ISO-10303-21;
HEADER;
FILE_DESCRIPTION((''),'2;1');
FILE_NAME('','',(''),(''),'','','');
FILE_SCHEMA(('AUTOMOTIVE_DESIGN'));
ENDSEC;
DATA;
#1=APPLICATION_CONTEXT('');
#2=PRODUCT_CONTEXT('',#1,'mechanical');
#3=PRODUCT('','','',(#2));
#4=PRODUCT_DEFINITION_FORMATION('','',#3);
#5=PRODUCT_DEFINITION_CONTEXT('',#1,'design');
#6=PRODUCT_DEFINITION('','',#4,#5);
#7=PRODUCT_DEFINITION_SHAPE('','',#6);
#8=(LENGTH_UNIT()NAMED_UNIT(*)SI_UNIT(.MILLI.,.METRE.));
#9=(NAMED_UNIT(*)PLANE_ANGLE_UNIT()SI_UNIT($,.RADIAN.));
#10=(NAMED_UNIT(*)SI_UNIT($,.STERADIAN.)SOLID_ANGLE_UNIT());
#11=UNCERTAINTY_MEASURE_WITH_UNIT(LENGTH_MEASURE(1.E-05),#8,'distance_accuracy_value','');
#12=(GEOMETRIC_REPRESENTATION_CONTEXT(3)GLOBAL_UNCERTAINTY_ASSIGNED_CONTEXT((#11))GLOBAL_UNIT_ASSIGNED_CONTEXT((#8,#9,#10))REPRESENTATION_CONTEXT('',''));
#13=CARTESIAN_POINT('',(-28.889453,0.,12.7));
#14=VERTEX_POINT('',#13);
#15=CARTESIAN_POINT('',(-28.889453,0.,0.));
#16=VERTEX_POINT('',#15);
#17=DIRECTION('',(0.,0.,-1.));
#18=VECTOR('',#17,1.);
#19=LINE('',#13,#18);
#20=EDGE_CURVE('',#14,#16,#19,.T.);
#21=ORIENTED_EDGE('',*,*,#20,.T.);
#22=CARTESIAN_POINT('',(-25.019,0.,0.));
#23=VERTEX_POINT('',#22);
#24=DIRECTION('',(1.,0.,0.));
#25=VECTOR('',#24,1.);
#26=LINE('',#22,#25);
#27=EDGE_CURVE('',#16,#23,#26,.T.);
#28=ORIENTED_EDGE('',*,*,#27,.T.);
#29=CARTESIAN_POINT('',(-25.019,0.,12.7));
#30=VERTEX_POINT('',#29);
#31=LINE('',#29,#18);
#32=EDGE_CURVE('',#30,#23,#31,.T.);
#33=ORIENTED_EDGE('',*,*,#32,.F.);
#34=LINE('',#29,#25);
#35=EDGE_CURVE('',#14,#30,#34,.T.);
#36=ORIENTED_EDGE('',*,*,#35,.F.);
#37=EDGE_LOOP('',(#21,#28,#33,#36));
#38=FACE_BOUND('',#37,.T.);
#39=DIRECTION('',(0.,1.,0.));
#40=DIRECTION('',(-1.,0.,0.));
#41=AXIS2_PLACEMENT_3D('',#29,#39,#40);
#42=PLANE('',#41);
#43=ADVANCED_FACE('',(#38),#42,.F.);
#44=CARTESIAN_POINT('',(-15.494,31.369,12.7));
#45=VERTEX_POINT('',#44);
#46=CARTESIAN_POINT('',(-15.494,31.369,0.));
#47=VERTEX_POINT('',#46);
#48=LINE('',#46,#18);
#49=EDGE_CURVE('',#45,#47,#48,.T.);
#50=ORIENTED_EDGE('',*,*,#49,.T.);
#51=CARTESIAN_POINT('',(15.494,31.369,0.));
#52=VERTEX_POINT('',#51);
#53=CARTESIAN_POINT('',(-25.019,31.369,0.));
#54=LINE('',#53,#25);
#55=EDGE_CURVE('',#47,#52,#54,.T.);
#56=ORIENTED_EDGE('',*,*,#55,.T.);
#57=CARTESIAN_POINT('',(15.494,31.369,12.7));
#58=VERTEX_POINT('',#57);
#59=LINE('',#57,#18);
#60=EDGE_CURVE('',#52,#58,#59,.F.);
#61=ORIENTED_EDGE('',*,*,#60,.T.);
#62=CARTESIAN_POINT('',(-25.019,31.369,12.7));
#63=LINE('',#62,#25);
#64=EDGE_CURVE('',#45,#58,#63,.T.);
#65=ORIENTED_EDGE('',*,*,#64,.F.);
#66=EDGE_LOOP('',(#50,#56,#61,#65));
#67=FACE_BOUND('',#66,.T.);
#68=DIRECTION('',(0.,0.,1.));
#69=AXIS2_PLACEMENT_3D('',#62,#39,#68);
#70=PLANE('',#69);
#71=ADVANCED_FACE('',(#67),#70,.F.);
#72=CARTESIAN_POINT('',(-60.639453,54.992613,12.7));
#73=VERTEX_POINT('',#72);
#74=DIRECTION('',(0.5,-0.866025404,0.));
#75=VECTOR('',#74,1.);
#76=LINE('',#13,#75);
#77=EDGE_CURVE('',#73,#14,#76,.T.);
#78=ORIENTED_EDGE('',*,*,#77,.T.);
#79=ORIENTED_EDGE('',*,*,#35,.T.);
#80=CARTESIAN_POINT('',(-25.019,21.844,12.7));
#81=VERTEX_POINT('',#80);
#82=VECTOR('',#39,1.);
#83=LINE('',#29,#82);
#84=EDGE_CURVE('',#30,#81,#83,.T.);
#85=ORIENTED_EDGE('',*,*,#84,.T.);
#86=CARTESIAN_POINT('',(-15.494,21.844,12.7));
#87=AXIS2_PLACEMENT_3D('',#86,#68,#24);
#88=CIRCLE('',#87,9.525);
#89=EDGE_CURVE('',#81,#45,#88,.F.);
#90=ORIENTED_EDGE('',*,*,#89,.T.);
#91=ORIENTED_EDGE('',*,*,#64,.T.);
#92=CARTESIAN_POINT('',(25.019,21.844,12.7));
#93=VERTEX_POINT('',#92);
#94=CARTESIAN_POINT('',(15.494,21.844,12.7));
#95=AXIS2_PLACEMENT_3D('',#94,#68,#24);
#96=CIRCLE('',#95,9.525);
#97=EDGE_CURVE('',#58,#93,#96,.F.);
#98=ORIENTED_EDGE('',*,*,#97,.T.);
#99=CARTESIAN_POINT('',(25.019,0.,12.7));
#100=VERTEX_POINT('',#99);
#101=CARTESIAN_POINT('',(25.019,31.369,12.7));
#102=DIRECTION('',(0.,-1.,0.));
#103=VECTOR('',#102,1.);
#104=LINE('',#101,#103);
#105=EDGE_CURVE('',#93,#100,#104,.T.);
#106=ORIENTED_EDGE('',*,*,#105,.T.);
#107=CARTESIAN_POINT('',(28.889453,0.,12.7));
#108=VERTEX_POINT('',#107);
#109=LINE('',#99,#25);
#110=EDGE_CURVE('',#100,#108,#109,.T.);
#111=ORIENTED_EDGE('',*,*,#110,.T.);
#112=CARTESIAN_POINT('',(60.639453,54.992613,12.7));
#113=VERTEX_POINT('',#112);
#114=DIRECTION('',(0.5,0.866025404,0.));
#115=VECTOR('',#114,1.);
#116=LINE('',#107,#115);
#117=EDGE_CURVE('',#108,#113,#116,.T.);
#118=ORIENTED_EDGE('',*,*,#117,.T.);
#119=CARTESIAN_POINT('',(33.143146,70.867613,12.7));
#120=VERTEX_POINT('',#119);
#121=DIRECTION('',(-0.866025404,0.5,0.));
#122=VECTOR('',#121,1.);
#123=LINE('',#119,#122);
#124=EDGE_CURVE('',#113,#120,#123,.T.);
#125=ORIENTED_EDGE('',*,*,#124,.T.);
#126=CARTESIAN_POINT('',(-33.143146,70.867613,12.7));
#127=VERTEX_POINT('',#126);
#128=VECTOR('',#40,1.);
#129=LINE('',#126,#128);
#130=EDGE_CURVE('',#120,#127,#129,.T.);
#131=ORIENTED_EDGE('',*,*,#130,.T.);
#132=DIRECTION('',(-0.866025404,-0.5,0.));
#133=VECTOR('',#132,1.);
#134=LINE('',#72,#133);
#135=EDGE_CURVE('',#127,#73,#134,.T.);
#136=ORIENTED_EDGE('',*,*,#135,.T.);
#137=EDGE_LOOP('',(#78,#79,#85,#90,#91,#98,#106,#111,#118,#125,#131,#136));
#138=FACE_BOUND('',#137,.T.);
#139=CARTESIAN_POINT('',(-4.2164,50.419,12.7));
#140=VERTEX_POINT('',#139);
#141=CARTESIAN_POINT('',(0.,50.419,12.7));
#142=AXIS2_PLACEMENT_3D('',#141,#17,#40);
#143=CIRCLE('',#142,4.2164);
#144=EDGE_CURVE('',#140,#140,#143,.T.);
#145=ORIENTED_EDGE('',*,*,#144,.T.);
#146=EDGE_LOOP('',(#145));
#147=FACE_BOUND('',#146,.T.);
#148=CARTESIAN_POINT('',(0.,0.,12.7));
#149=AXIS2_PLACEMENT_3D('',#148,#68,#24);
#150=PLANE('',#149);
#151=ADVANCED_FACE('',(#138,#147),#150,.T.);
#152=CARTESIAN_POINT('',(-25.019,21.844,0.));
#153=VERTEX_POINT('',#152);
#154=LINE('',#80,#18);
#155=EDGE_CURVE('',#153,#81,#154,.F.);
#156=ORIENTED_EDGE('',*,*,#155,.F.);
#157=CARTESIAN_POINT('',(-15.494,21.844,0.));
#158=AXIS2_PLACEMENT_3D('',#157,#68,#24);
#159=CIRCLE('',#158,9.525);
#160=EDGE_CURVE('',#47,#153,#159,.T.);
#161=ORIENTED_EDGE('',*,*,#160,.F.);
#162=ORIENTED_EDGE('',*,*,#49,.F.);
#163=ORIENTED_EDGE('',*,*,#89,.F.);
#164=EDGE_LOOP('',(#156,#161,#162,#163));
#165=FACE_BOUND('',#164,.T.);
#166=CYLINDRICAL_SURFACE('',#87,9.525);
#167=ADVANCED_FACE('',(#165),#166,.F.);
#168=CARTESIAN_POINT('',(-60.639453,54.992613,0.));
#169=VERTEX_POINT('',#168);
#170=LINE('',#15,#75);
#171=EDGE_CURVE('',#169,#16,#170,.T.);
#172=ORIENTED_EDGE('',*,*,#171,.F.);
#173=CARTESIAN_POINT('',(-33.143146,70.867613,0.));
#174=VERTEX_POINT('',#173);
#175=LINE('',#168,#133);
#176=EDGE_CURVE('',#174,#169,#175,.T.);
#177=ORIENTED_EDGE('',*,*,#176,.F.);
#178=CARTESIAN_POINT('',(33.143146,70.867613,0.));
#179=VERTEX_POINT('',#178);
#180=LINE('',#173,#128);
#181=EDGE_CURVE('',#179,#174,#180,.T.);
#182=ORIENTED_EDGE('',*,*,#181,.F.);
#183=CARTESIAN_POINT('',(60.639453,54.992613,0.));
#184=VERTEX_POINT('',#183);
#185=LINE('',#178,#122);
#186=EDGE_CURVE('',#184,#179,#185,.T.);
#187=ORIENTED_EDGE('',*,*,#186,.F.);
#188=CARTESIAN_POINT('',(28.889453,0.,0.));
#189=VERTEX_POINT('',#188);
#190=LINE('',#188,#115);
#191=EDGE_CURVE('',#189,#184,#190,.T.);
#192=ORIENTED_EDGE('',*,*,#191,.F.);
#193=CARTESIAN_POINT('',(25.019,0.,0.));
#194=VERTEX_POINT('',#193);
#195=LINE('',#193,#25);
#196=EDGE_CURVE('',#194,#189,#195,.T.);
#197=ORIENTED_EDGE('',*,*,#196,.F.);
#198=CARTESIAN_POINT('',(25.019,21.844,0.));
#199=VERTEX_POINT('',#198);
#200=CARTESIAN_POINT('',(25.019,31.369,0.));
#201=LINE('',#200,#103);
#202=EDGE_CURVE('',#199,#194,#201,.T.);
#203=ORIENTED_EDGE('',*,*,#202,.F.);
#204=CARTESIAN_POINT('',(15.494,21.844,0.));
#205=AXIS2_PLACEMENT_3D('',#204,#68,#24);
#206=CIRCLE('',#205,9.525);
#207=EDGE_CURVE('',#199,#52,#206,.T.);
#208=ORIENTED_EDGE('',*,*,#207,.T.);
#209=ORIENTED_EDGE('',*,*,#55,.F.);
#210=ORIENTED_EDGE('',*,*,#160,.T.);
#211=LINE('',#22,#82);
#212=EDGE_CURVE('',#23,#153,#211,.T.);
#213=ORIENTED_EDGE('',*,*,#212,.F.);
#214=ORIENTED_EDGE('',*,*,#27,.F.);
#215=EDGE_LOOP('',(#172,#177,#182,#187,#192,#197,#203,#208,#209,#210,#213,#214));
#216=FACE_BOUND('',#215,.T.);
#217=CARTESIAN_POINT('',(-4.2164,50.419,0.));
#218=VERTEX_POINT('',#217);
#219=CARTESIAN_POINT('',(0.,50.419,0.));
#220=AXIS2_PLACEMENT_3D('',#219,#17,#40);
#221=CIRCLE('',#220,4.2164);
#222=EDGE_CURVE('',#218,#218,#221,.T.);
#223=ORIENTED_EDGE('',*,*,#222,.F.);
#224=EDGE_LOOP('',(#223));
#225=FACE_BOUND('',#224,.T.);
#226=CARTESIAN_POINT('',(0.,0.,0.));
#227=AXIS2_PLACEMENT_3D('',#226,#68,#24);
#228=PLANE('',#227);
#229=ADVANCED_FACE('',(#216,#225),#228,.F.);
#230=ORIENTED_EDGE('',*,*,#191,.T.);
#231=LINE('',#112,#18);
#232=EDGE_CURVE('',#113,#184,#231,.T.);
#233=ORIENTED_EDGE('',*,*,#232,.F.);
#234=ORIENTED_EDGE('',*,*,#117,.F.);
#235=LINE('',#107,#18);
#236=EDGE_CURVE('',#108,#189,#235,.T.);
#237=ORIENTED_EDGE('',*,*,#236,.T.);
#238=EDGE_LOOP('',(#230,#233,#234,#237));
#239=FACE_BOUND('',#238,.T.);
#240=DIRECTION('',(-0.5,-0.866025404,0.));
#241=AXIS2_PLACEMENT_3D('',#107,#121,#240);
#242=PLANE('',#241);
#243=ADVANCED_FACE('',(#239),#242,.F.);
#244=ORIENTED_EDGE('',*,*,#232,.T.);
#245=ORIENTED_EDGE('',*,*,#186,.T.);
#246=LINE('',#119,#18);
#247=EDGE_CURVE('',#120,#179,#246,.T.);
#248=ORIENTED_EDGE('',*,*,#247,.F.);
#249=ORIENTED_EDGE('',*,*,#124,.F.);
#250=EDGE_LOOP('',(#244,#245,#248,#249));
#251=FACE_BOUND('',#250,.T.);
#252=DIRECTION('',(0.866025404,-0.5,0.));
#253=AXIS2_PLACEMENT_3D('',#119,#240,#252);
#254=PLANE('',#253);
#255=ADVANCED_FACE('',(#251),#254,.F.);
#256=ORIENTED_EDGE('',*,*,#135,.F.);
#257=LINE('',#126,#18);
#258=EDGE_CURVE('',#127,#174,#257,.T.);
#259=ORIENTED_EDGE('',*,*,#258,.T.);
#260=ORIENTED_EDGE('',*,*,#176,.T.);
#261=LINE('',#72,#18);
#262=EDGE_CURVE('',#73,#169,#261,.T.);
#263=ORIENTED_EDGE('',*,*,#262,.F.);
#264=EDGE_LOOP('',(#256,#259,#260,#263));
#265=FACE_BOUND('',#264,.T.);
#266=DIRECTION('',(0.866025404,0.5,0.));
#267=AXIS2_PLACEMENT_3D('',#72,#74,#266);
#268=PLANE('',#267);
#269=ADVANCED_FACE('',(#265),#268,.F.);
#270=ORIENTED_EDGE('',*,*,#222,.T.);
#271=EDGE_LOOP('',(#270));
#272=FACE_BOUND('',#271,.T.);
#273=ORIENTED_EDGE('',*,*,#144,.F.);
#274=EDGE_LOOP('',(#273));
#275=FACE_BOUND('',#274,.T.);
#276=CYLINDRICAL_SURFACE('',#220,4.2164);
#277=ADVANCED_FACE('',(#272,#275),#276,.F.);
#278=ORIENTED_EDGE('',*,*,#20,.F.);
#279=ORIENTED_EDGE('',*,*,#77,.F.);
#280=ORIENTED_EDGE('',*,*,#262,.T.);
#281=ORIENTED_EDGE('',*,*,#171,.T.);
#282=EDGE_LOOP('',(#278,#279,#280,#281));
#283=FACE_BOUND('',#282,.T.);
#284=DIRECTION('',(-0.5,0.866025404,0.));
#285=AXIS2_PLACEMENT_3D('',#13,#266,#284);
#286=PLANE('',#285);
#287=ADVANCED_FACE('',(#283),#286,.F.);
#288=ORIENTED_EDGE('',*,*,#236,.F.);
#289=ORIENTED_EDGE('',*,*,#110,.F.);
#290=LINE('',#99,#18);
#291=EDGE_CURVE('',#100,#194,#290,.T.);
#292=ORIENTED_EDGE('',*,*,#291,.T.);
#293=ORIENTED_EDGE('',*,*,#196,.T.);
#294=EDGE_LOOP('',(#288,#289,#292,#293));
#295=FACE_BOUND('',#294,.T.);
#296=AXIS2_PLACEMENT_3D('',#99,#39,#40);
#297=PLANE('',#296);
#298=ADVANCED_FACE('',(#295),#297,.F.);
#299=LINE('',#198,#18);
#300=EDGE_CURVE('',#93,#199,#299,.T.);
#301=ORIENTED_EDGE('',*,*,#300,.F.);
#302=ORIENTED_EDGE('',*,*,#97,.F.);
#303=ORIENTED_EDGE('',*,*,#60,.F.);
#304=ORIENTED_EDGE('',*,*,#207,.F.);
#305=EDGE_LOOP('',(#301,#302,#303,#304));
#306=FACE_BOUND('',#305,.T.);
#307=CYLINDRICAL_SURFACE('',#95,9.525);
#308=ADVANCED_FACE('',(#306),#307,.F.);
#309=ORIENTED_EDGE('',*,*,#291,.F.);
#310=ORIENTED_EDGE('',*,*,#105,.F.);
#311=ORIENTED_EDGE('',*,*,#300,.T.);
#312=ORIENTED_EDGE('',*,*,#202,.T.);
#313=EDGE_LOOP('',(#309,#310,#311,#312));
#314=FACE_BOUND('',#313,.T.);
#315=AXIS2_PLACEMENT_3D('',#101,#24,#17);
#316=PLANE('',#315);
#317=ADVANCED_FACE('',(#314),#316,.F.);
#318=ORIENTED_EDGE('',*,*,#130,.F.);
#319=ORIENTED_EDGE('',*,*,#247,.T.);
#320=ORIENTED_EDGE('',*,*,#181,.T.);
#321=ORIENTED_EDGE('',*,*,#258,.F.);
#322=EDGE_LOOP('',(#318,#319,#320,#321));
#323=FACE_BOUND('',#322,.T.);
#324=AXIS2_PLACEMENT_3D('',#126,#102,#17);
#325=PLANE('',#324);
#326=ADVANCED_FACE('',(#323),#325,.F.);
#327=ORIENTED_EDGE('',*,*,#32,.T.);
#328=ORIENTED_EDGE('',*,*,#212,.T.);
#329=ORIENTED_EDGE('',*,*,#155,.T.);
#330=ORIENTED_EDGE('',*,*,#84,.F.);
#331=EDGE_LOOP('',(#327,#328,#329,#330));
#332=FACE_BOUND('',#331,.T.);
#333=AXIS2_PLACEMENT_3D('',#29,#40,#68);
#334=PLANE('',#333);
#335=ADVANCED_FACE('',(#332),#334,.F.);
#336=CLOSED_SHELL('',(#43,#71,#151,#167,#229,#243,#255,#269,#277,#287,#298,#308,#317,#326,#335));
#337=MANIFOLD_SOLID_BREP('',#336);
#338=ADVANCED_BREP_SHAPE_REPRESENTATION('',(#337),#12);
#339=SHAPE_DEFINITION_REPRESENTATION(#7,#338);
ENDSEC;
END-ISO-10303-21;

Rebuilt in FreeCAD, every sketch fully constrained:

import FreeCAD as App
import Part
import Sketcher

V = App.Vector
Q = App.Units.Quantity


def edges_at(feature, points):
    """Names of the edges that pass closest to the given points."""
    edges = feature.Shape.Edges
    near = lambda p: min(range(len(edges)), key=lambda i: edges[i].distToShape(Part.Vertex(*p))[0])
    return sorted({f"Edge{near(p) + 1}" for p in points})


def add_polygon(sketch, points):
    """Adds a closed chain of lines whose ends are joined by coincident constraints."""
    first, n = sketch.GeometryCount, len(points)
    for a, b in zip(points, points[1:] + points[:1]):
        sketch.addGeometry(Part.LineSegment(App.Vector(*a, 0), App.Vector(*b, 0)), False)
    for i in range(n):
        sketch.addConstraint(Sketcher.Constraint("Coincident", first + i, 2, first + (i + 1) % n, 1))

doc = App.newDocument("Part")
body = doc.addObject("PartDesign::Body", "Body")

sketch1 = body.newObject("Sketcher::SketchObject", "Sketch")
sketch1.AttachmentSupport = (doc.getObject("XY_Plane"), [""])
sketch1.MapMode = "FlatFace"
add_polygon(sketch1, [(25, 0), (28.9, 0), (60.6, 55), (33.1, 70.9), (-33.1, 70.9), (-60.6, 55), (-28.9, 0), (-25, 0), (-25, 31.4), (25, 31.4)])
sketch1.addConstraint(Sketcher.Constraint("Horizontal", 0))
sketch1.addConstraint(Sketcher.Constraint("Horizontal", 3))
sketch1.addConstraint(Sketcher.Constraint("Horizontal", 6))
sketch1.addConstraint(Sketcher.Constraint("Vertical", 7))
sketch1.addConstraint(Sketcher.Constraint("Horizontal", 8))
sketch1.addConstraint(Sketcher.Constraint("Vertical", 9))
sketch1.addConstraint(Sketcher.Constraint("Symmetric", 0, 2, 5, 2, -1, 1))
sketch1.addConstraint(Sketcher.Constraint("Symmetric", 1, 2, 4, 2, -2))
sketch1.addConstraint(Sketcher.Constraint("Symmetric", 6, 2, 9, 2, -2))
sketch1.addConstraint(Sketcher.Constraint("Perpendicular", 1, 2))
sketch1.addConstraint(Sketcher.Constraint("Perpendicular", 4, 5))
sketch1.addConstraint(Sketcher.Constraint("Angle", 1, Q("60 deg")))
sketch1.addConstraint(Sketcher.Constraint("Distance", 1, Q("2.5 in")))
sketch1.addConstraint(Sketcher.Constraint("DistanceX", 8, 1, 8, 2, Q("1.97 in")))
sketch1.addConstraint(Sketcher.Constraint("Distance", 2, Q("1.25 in")))
sketch1.addConstraint(Sketcher.Constraint("DistanceY", 7, 1, 7, 2, Q("1.235 in")))
sketch1.addConstraint(Sketcher.Constraint("DistanceX", 3, 2, 0, 2, 62.032599))
pad1 = body.newObject("PartDesign::Pad", "Pad")
pad1.Profile = sketch1
pad1.Length = Q("0.5 in")
doc.recompute()

fillet = body.newObject("PartDesign::Fillet", "Fillet")
fillet.Base = (pad1, edges_at(pad1, [(25.019, 31.369, 6.35), (-25.019, 31.369, 6.35)]))
fillet.Radius = Q("0.375 in")

sketch2 = body.newObject("Sketcher::SketchObject", "Sketch001")
sketch2.AttachmentSupport = (doc.getObject("XY_Plane"), [""])
sketch2.MapMode = "FlatFace"
sketch2.addGeometry(Part.Circle(V(0, 50.4, 0), V(0, 0, 1), 4.2), False)
sketch2.addConstraint(Sketcher.Constraint("PointOnObject", 0, 3, -2))
sketch2.addConstraint(Sketcher.Constraint("Diameter", 0, Q("0.332 in")))
sketch2.addConstraint(Sketcher.Constraint("DistanceY", -1, 1, 0, 3, Q("1.985 in")))
doc.recompute()
hole = body.newObject("PartDesign::Hole", "Hole")
hole.Profile = sketch2
hole.ThreadType = "None"
hole.Diameter = Q("0.332 in")
hole.DepthType = "ThroughAll"
hole.Reversed = True

doc.recompute()
